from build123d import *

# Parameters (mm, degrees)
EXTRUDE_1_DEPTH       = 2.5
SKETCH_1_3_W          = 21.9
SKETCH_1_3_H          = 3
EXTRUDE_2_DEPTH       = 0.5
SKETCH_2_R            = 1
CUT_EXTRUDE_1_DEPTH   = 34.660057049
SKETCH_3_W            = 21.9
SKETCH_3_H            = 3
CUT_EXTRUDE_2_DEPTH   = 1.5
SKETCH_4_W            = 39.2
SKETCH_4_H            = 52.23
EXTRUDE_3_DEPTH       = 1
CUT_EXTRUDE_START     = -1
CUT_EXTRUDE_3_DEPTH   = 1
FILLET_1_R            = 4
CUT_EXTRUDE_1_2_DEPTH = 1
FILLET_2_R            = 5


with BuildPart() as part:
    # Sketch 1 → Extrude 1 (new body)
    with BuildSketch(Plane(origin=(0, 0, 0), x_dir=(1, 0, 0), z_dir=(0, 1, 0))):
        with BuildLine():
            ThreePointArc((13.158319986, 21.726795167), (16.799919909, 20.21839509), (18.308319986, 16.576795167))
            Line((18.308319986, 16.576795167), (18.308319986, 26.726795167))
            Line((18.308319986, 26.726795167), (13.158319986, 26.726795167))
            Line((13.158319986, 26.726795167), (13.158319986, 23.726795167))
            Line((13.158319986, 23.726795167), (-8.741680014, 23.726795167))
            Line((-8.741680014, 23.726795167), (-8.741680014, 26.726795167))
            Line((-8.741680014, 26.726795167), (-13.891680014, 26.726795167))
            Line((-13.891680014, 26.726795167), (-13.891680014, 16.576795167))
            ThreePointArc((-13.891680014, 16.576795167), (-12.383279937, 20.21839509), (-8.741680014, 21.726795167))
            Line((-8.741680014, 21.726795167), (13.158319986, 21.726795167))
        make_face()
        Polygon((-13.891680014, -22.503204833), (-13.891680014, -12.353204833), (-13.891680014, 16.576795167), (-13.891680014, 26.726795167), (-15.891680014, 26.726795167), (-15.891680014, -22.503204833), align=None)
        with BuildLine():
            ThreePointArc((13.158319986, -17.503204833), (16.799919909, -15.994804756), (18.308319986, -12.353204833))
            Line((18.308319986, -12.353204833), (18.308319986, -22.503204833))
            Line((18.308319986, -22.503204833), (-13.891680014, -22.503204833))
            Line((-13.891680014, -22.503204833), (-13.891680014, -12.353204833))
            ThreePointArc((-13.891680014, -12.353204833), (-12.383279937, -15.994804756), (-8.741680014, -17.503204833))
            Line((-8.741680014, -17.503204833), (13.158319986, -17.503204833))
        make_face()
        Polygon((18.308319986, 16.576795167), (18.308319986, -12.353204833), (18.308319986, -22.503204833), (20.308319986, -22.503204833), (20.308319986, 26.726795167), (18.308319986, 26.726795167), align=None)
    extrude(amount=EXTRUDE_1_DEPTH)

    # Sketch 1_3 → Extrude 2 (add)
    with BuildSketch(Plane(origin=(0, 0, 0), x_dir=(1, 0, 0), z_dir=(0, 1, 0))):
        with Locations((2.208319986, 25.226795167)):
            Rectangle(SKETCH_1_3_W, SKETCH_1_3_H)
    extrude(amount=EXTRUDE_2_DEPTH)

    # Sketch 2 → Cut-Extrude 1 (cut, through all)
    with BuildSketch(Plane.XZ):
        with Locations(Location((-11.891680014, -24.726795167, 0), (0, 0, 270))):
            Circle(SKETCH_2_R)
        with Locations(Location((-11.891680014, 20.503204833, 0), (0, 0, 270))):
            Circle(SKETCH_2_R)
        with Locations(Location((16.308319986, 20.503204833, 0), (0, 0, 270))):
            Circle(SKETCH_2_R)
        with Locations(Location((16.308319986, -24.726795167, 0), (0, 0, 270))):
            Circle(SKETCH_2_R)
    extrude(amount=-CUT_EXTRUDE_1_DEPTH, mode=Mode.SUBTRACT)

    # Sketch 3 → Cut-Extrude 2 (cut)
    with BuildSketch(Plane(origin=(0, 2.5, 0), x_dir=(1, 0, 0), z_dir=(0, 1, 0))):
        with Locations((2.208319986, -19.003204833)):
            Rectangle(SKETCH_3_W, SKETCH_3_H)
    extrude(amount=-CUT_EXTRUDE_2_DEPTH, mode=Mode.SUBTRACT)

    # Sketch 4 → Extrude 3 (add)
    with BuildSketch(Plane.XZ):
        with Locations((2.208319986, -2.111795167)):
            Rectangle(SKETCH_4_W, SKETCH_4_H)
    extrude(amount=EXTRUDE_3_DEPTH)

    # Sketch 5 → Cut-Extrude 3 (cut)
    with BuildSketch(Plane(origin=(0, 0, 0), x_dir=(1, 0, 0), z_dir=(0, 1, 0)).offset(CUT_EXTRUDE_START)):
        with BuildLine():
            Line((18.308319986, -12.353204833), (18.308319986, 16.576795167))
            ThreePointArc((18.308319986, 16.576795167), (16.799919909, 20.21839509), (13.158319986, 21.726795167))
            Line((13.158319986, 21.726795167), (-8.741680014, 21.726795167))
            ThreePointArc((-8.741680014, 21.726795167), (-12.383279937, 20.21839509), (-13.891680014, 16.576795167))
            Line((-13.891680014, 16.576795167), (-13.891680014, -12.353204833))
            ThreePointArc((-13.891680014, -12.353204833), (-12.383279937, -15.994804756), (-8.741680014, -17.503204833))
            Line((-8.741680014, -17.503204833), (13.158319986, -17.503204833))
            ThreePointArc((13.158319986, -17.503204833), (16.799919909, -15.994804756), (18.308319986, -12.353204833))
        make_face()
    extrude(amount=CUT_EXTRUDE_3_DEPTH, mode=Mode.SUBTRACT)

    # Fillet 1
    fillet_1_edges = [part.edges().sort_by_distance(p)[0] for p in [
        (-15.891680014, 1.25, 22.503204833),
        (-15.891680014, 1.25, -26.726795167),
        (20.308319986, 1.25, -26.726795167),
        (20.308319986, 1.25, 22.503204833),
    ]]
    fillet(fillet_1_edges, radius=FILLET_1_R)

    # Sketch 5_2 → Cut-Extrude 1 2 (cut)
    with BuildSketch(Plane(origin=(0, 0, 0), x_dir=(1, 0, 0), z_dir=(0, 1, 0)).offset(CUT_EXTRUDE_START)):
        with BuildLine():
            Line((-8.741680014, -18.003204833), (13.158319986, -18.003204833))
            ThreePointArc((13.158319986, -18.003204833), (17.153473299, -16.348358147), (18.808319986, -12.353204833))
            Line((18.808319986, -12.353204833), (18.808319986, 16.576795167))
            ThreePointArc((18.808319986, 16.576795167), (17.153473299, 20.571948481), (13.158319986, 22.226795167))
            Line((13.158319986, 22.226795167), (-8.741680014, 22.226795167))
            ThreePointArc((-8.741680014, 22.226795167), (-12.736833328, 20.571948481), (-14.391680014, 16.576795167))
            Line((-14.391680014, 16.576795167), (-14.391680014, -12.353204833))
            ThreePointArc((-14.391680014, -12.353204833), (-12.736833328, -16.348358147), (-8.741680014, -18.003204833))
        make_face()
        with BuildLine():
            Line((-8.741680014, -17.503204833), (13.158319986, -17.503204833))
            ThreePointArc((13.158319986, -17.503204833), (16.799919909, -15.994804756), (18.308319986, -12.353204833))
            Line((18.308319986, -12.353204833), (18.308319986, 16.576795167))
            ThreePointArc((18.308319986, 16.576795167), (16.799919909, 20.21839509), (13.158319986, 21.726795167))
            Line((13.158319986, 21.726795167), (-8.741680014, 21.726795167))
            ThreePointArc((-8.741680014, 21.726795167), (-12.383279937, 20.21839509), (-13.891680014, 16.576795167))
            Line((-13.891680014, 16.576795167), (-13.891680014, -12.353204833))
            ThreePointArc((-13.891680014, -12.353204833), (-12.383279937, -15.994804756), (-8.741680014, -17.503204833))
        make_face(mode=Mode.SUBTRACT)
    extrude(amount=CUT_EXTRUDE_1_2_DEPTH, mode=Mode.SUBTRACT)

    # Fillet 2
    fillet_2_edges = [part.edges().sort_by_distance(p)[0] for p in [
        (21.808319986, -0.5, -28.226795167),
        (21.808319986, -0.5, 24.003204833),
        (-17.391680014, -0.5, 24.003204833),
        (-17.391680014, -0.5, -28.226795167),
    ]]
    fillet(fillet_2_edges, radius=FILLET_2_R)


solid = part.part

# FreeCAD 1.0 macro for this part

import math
import FreeCAD as App
import Part
import Sketcher
from FreeCAD import Vector
Q = App.Units.Quantity


def edges_at(feature, points):
    """Names of the edges that pass closest to the given points."""
    edges = feature.Shape.Edges
    near = lambda p: min(range(len(edges)), key=lambda i: edges[i].distToShape(Part.Vertex(*p))[0])
    return sorted({f"Edge{near(p) + 1}" for p in points})


def add_polygon(sketch, points):
    """Adds a closed chain of lines whose ends are joined by coincident constraints."""
    first, n = sketch.GeometryCount, len(points)
    for a, b in zip(points, points[1:] + points[:1]):
        sketch.addGeometry(Part.LineSegment(App.Vector(*a, 0), App.Vector(*b, 0)), False)
    for i in range(n):
        sketch.addConstraint(Sketcher.Constraint("Coincident", first + i, 2, first + (i + 1) % n, 1))

doc = App.newDocument("Part")
params = doc.addObject("Spreadsheet::Sheet", "Params")
for row, (alias, value) in enumerate([
    ("sketch1_height", "3 mm"),
    ("sketch1_radius", "5.15 mm"),
    ("sketch1_width", "21.9 mm"),
    ("sketch1_width2", "36.2 mm"),
    ("sketch1_height2", "49.23 mm"),
    ("pad1_length", "2.5 mm"),
    ("sketch2_height", "3 mm"),
    ("sketch2_width", "21.9 mm"),
    ("pad2_length", "0.5 mm"),
    ("sketch3_diameter", "2 mm"),
    ("sketch4_height", "3 mm"),
    ("sketch4_width", "21.9 mm"),
    ("pocket2_length", "1.5 mm"),
    ("sketch5_width", "39.2 mm"),
    ("sketch5_height", "52.23 mm"),
    ("pad3_length", "1 mm"),
    ("sketch6_radius", "5.15 mm"),
    ("sketch6_width", "21.9 mm"),
    ("sketch6_height", "28.93 mm"),
    ("pocket3_length", "1 mm"),
    ("fillet_radius", "4 mm"),
    ("sketch7_radius", "5.65 mm"),
    ("sketch7_radius2", "5.15 mm"),
    ("sketch7_width", "21.9 mm"),
    ("sketch7_height", "28.93 mm"),
    ("pocket4_length", "1 mm"),
    ("fillet2_radius", "5 mm"),
], start=1):
    params.set(f"A{row}", alias)
    params.set(f"B{row}", "=" + value)
    params.setAlias(f"B{row}", alias)

body = doc.addObject("PartDesign::Body", "Body")

# Sketch on XZ plane
sketch1 = body.newObject("Sketcher::SketchObject", "Sketch")
sketch1.AttachmentSupport = (doc.getObject("XZ_Plane"), [""])
sketch1.MapMode = "FlatFace"
add_polygon(sketch1, [(13.15832, -26.726795), (13.15832, -23.726795), (-8.74168, -23.726795), (-8.74168, -26.726795), (-15.89168, -26.726795), (-15.89168, 22.503205), (20.30832, 22.503205), (20.30832, -26.726795)])  # lines 0-7
sketch1.addGeometry(Part.ArcOfCircle(Part.Circle(Vector(13.15832, -16.576795, 0), Vector(0, 0, 1), 5.15), math.radians(-90), math.radians(0)), False)  # 8
sketch1.addGeometry(Part.LineSegment(Vector(18.30832, -16.576795, 0), Vector(18.30832, 12.353205, 0)), False)  # 9
sketch1.addGeometry(Part.ArcOfCircle(Part.Circle(Vector(13.15832, 12.353205, 0), Vector(0, 0, 1), 5.15), math.radians(0), math.radians(90)), False)  # 10
sketch1.addGeometry(Part.LineSegment(Vector(13.15832, 17.503205, 0), Vector(-8.74168, 17.503205, 0)), False)  # 11
sketch1.addGeometry(Part.ArcOfCircle(Part.Circle(Vector(-8.74168, 12.353205, 0), Vector(0, 0, 1), 5.15), math.radians(90), math.radians(180)), False)  # 12
sketch1.addGeometry(Part.LineSegment(Vector(-13.89168, 12.353205, 0), Vector(-13.89168, -16.576795, 0)), False)  # 13
sketch1.addGeometry(Part.ArcOfCircle(Part.Circle(Vector(-8.74168, -16.576795, 0), Vector(0, 0, 1), 5.15), math.radians(180), math.radians(270)), False)  # 14
sketch1.addGeometry(Part.LineSegment(Vector(-8.74168, -21.726795, 0), Vector(13.15832, -21.726795, 0)), False)  # 15
sketch1.addConstraint(Sketcher.Constraint("Tangent", 8, 2, 9, 1))
sketch1.addConstraint(Sketcher.Constraint("Tangent", 9, 2, 10, 1))
sketch1.addConstraint(Sketcher.Constraint("Tangent", 10, 2, 11, 1))
sketch1.addConstraint(Sketcher.Constraint("Tangent", 11, 2, 12, 1))
sketch1.addConstraint(Sketcher.Constraint("Tangent", 12, 2, 13, 1))
sketch1.addConstraint(Sketcher.Constraint("Tangent", 13, 2, 14, 1))
sketch1.addConstraint(Sketcher.Constraint("Tangent", 14, 2, 15, 1))
sketch1.addConstraint(Sketcher.Constraint("Tangent", 15, 2, 8, 1))
sketch1.addConstraint(Sketcher.Constraint("Vertical", 0))
sketch1.addConstraint(Sketcher.Constraint("Horizontal", 1))
sketch1.addConstraint(Sketcher.Constraint("Vertical", 2))
sketch1.addConstraint(Sketcher.Constraint("Horizontal", 3))
sketch1.addConstraint(Sketcher.Constraint("Vertical", 4))
sketch1.addConstraint(Sketcher.Constraint("Horizontal", 5))
sketch1.addConstraint(Sketcher.Constraint("Vertical", 6))
sketch1.addConstraint(Sketcher.Constraint("Horizontal", 7))
sketch1.addConstraint(Sketcher.Constraint("Vertical", 9))
sketch1.addConstraint(Sketcher.Constraint("Horizontal", 11))
sketch1.addConstraint(Sketcher.Constraint("Vertical", 13))
sketch1.addConstraint(Sketcher.Constraint("Horizontal", 15))
sketch1.addConstraint(Sketcher.Constraint("Equal", 8, 10))
sketch1.addConstraint(Sketcher.Constraint("Equal", 10, 12))
sketch1.addConstraint(Sketcher.Constraint("Equal", 12, 14))
sketch1.addConstraint(Sketcher.Constraint("Horizontal", 3, 2, 6, 2))
sketch1.addConstraint(Sketcher.Constraint("Vertical", 10, 3, 0, 2))
sketch1.addConstraint(Sketcher.Constraint("Vertical", 14, 3, 1, 2))
sketch1.addConstraint(Sketcher.Constraint("Equal", 3, 7))
sketch1.addConstraint(Sketcher.Constraint("DistanceY", 0, 1, 0, 2, Q("3 mm")))
sketch1.addConstraint(Sketcher.Constraint("Radius", 8, Q("5.15 mm")))
sketch1.addConstraint(Sketcher.Constraint("DistanceX", 1, 2, 1, 1, Q("21.9 mm")))
sketch1.addConstraint(Sketcher.Constraint("DistanceX", 5, 1, 5, 2, Q("36.2 mm")))
sketch1.addConstraint(Sketcher.Constraint("DistanceY", 10, 2, 5, 2, Q("5 mm")))
sketch1.addConstraint(Sketcher.Constraint("DistanceY", 1, 2, 14, 2, Q("2 mm")))
sketch1.addConstraint(Sketcher.Constraint("DistanceY", 4, 1, 4, 2, Q("49.23 mm")))
sketch1.addConstraint(Sketcher.Constraint("DistanceX", -1, 1, 8, 3, Q("13.15832 mm")))
sketch1.addConstraint(Sketcher.Constraint("DistanceY", 8, 3, -1, 1, Q("16.576795 mm")))
sketch1.setExpression("Constraints[35]", "Params.sketch1_height")
sketch1.setExpression("Constraints[36]", "Params.sketch1_radius")
sketch1.setExpression("Constraints[37]", "Params.sketch1_width")
sketch1.setExpression("Constraints[38]", "Params.sketch1_width2")
sketch1.setExpression("Constraints[41]", "Params.sketch1_height2")
pad1 = body.newObject("PartDesign::Pad", "Pad")
pad1.Profile = sketch1
pad1.setExpression("Length", "Params.pad1_length")
pad1.Reversed = True

# Sketch on XZ plane
sketch2 = body.newObject("Sketcher::SketchObject", "Sketch001")
sketch2.AttachmentSupport = (doc.getObject("XZ_Plane"), [""])
sketch2.MapMode = "FlatFace"
add_polygon(sketch2, [(-8.74168, -26.726795), (-8.74168, -23.726795), (13.15832, -23.726795), (13.15832, -26.726795)])  # lines 0-3
sketch2.addConstraint(Sketcher.Constraint("Vertical", 0))
sketch2.addConstraint(Sketcher.Constraint("Horizontal", 1))
sketch2.addConstraint(Sketcher.Constraint("Vertical", 2))
sketch2.addConstraint(Sketcher.Constraint("Horizontal", 3))
sketch2.addConstraint(Sketcher.Constraint("DistanceY", 0, 1, 0, 2, Q("3 mm")))
sketch2.addConstraint(Sketcher.Constraint("DistanceX", 1, 1, 1, 2, Q("21.9 mm")))
sketch2.addConstraint(Sketcher.Constraint("DistanceX", 0, 2, -1, 1, Q("8.74168 mm")))
sketch2.addConstraint(Sketcher.Constraint("DistanceY", 0, 2, -1, 1, Q("23.726795 mm")))
sketch2.setExpression("Constraints[8]", "Params.sketch2_height")
sketch2.setExpression("Constraints[9]", "Params.sketch2_width")
pad2 = body.newObject("PartDesign::Pad", "Pad001")
pad2.Profile = sketch2
pad2.setExpression("Length", "Params.pad2_length")
pad2.Reversed = True

# Sketch on XZ plane
sketch3 = body.newObject("Sketcher::SketchObject", "Sketch002")
sketch3.AttachmentSupport = (doc.getObject("XZ_Plane"), [""])
sketch3.MapMode = "FlatFace"
sketch3.addGeometry(Part.Circle(Vector(-11.89168, -24.726795, 0), Vector(0, 0, 1), 1), False)
sketch3.addGeometry(Part.Circle(Vector(-11.89168, 20.503205, 0), Vector(0, 0, 1), 1), False)
sketch3.addGeometry(Part.Circle(Vector(16.30832, 20.503205, 0), Vector(0, 0, 1), 1), False)
sketch3.addGeometry(Part.Circle(Vector(16.30832, -24.726795, 0), Vector(0, 0, 1), 1), False)
sketch3.addConstraint(Sketcher.Constraint("Equal", 0, 1))
sketch3.addConstraint(Sketcher.Constraint("Equal", 1, 2))
sketch3.addConstraint(Sketcher.Constraint("Equal", 2, 3))
sketch3.addConstraint(Sketcher.Constraint("Horizontal", 1, 3, 2, 3))
sketch3.addConstraint(Sketcher.Constraint("Horizontal", 0, 3, 3, 3))
sketch3.addConstraint(Sketcher.Constraint("Vertical", 0, 3, 1, 3))
sketch3.addConstraint(Sketcher.Constraint("Vertical", 2, 3, 3, 3))
sketch3.addConstraint(Sketcher.Constraint("Diameter", 0, Q("2 mm")))
sketch3.addConstraint(Sketcher.Constraint("DistanceX", 1, 3, 2, 3, Q("28.2 mm")))
sketch3.addConstraint(Sketcher.Constraint("DistanceY", 0, 3, 1, 3, Q("45.23 mm")))
sketch3.addConstraint(Sketcher.Constraint("DistanceX", 0, 3, -1, 1, Q("11.89168 mm")))
sketch3.addConstraint(Sketcher.Constraint("DistanceY", 0, 3, -1, 1, Q("24.726795 mm")))
sketch3.setExpression("Constraints[7]", "Params.sketch3_diameter")
pocket1 = body.newObject("PartDesign::Pocket", "Pocket")
pocket1.Profile = sketch3
pocket1.Type = "ThroughAll"

# Sketch on XZ plane
sketch4 = body.newObject("Sketcher::SketchObject", "Sketch003")
sketch4.AttachmentSupport = (doc.getObject("XZ_Plane"), [""])
sketch4.MapMode = "FlatFace"
sketch4.AttachmentOffset = App.Placement(Vector(0, 0, -2.5), App.Rotation())
add_polygon(sketch4, [(-8.74168, 17.503205), (-8.74168, 20.503205), (13.15832, 20.503205), (13.15832, 17.503205)])  # lines 0-3
sketch4.addConstraint(Sketcher.Constraint("Vertical", 0))
sketch4.addConstraint(Sketcher.Constraint("Horizontal", 1))
sketch4.addConstraint(Sketcher.Constraint("Vertical", 2))
sketch4.addConstraint(Sketcher.Constraint("Horizontal", 3))
sketch4.addConstraint(Sketcher.Constraint("DistanceY", 0, 1, 0, 2, Q("3 mm")))
sketch4.addConstraint(Sketcher.Constraint("DistanceX", 1, 1, 1, 2, Q("21.9 mm")))
sketch4.addConstraint(Sketcher.Constraint("DistanceX", 0, 2, -1, 1, Q("8.74168 mm")))
sketch4.addConstraint(Sketcher.Constraint("DistanceY", -1, 1, 0, 2, Q("20.503205 mm")))
sketch4.setExpression("Constraints[8]", "Params.sketch4_height")
sketch4.setExpression("Constraints[9]", "Params.sketch4_width")
pocket2 = body.newObject("PartDesign::Pocket", "Pocket001")
pocket2.Profile = sketch4
pocket2.setExpression("Length", "Params.pocket2_length")
pocket2.Reversed = True

# Sketch on XZ plane
sketch5 = body.newObject("Sketcher::SketchObject", "Sketch004")
sketch5.AttachmentSupport = (doc.getObject("XZ_Plane"), [""])
sketch5.MapMode = "FlatFace"
add_polygon(sketch5, [(-17.39168, 24.003205), (-17.39168, -28.226795), (21.80832, -28.226795), (21.80832, 24.003205)])  # lines 0-3
sketch5.addConstraint(Sketcher.Constraint("Vertical", 0))
sketch5.addConstraint(Sketcher.Constraint("Horizontal", 1))
sketch5.addConstraint(Sketcher.Constraint("Vertical", 2))
sketch5.addConstraint(Sketcher.Constraint("Horizontal", 3))
sketch5.addConstraint(Sketcher.Constraint("DistanceX", 1, 1, 1, 2, Q("39.2 mm")))
sketch5.addConstraint(Sketcher.Constraint("DistanceY", 0, 2, 0, 1, Q("52.23 mm")))
sketch5.addConstraint(Sketcher.Constraint("DistanceX", 0, 2, -1, 1, Q("17.39168 mm")))
sketch5.addConstraint(Sketcher.Constraint("DistanceY", 0, 2, -1, 1, Q("28.226795 mm")))
sketch5.setExpression("Constraints[8]", "Params.sketch5_width")
sketch5.setExpression("Constraints[9]", "Params.sketch5_height")
pad3 = body.newObject("PartDesign::Pad", "Pad002")
pad3.Profile = sketch5
pad3.setExpression("Length", "Params.pad3_length")

# Sketch on XZ plane
sketch6 = body.newObject("Sketcher::SketchObject", "Sketch005")
sketch6.AttachmentSupport = (doc.getObject("XZ_Plane"), [""])
sketch6.MapMode = "FlatFace"
sketch6.AttachmentOffset = App.Placement(Vector(0, 0, 1), App.Rotation())
sketch6.addGeometry(Part.LineSegment(Vector(18.30832, 12.353205, 0), Vector(18.30832, -16.576795, 0)), False)
sketch6.addGeometry(Part.ArcOfCircle(Part.Circle(Vector(13.15832, -16.576795, 0), Vector(0, 0, 1), 5.15), math.radians(-90), math.radians(0)), False)
sketch6.addGeometry(Part.LineSegment(Vector(13.15832, -21.726795, 0), Vector(-8.74168, -21.726795, 0)), False)
sketch6.addGeometry(Part.ArcOfCircle(Part.Circle(Vector(-8.74168, -16.576795, 0), Vector(0, 0, 1), 5.15), math.radians(180), math.radians(270)), False)
sketch6.addGeometry(Part.LineSegment(Vector(-13.89168, -16.576795, 0), Vector(-13.89168, 12.353205, 0)), False)
sketch6.addGeometry(Part.ArcOfCircle(Part.Circle(Vector(-8.74168, 12.353205, 0), Vector(0, 0, 1), 5.15), math.radians(90), math.radians(180)), False)
sketch6.addGeometry(Part.LineSegment(Vector(-8.74168, 17.503205, 0), Vector(13.15832, 17.503205, 0)), False)
sketch6.addGeometry(Part.ArcOfCircle(Part.Circle(Vector(13.15832, 12.353205, 0), Vector(0, 0, 1), 5.15), math.radians(0), math.radians(90)), False)
sketch6.addConstraint(Sketcher.Constraint("Tangent", 0, 2, 1, 2))
sketch6.addConstraint(Sketcher.Constraint("Tangent", 1, 1, 2, 1))
sketch6.addConstraint(Sketcher.Constraint("Tangent", 2, 2, 3, 2))
sketch6.addConstraint(Sketcher.Constraint("Tangent", 3, 1, 4, 1))
sketch6.addConstraint(Sketcher.Constraint("Tangent", 4, 2, 5, 2))
sketch6.addConstraint(Sketcher.Constraint("Tangent", 5, 1, 6, 1))
sketch6.addConstraint(Sketcher.Constraint("Tangent", 6, 2, 7, 2))
sketch6.addConstraint(Sketcher.Constraint("Tangent", 7, 1, 0, 1))
sketch6.addConstraint(Sketcher.Constraint("Vertical", 0))
sketch6.addConstraint(Sketcher.Constraint("Horizontal", 2))
sketch6.addConstraint(Sketcher.Constraint("Vertical", 4))
sketch6.addConstraint(Sketcher.Constraint("Horizontal", 6))
sketch6.addConstraint(Sketcher.Constraint("Equal", 1, 3))
sketch6.addConstraint(Sketcher.Constraint("Equal", 3, 5))
sketch6.addConstraint(Sketcher.Constraint("Equal", 5, 7))
sketch6.addConstraint(Sketcher.Constraint("Radius", 1, Q("5.15 mm")))
sketch6.addConstraint(Sketcher.Constraint("DistanceX", 2, 2, 2, 1, Q("21.9 mm")))
sketch6.addConstraint(Sketcher.Constraint("DistanceY", 0, 2, 0, 1, Q("28.93 mm")))
sketch6.addConstraint(Sketcher.Constraint("DistanceX", -1, 1, 1, 3, Q("13.15832 mm")))
sketch6.addConstraint(Sketcher.Constraint("DistanceY", 1, 3, -1, 1, Q("16.576795 mm")))
sketch6.setExpression("Constraints[15]", "Params.sketch6_radius")
sketch6.setExpression("Constraints[16]", "Params.sketch6_width")
sketch6.setExpression("Constraints[17]", "Params.sketch6_height")
pocket3 = body.newObject("PartDesign::Pocket", "Pocket002")
pocket3.Profile = sketch6
pocket3.setExpression("Length", "Params.pocket3_length")
doc.recompute()

fillet = body.newObject("PartDesign::Fillet", "Fillet")
fillet.Base = (pocket3, edges_at(pocket3, [
    (-15.892, 1.25, 22.503),
    (-15.892, 1.25, -26.727),
    (20.308, 1.25, -26.727),
    (20.308, 1.25, 22.503),
]))
fillet.setExpression("Radius", "Params.fillet_radius")

# Sketch on XZ plane
sketch7 = body.newObject("Sketcher::SketchObject", "Sketch006")
sketch7.AttachmentSupport = (doc.getObject("XZ_Plane"), [""])
sketch7.MapMode = "FlatFace"
sketch7.AttachmentOffset = App.Placement(Vector(0, 0, 1), App.Rotation())
sketch7.addGeometry(Part.LineSegment(Vector(-8.74168, 18.003205, 0), Vector(13.15832, 18.003205, 0)), False)
sketch7.addGeometry(Part.ArcOfCircle(Part.Circle(Vector(13.15832, 12.353205, 0), Vector(0, 0, 1), 5.65), math.radians(0), math.radians(90)), False)
sketch7.addGeometry(Part.LineSegment(Vector(18.80832, 12.353205, 0), Vector(18.80832, -16.576795, 0)), False)
sketch7.addGeometry(Part.ArcOfCircle(Part.Circle(Vector(13.15832, -16.576795, 0), Vector(0, 0, 1), 5.65), math.radians(-90), math.radians(0)), False)
sketch7.addGeometry(Part.LineSegment(Vector(13.15832, -22.226795, 0), Vector(-8.74168, -22.226795, 0)), False)
sketch7.addGeometry(Part.ArcOfCircle(Part.Circle(Vector(-8.74168, -16.576795, 0), Vector(0, 0, 1), 5.65), math.radians(180), math.radians(270)), False)
sketch7.addGeometry(Part.LineSegment(Vector(-14.39168, -16.576795, 0), Vector(-14.39168, 12.353205, 0)), False)
sketch7.addGeometry(Part.ArcOfCircle(Part.Circle(Vector(-8.74168, 12.353205, 0), Vector(0, 0, 1), 5.65), math.radians(90), math.radians(180)), False)
sketch7.addGeometry(Part.LineSegment(Vector(13.15832, 17.503205, 0), Vector(-8.74168, 17.503205, 0)), False)
sketch7.addGeometry(Part.ArcOfCircle(Part.Circle(Vector(-8.74168, 12.353205, 0), Vector(0, 0, 1), 5.15), math.radians(90), math.radians(180)), False)
sketch7.addGeometry(Part.LineSegment(Vector(-13.89168, 12.353205, 0), Vector(-13.89168, -16.576795, 0)), False)
sketch7.addGeometry(Part.ArcOfCircle(Part.Circle(Vector(-8.74168, -16.576795, 0), Vector(0, 0, 1), 5.15), math.radians(180), math.radians(270)), False)
sketch7.addGeometry(Part.LineSegment(Vector(-8.74168, -21.726795, 0), Vector(13.15832, -21.726795, 0)), False)
sketch7.addGeometry(Part.ArcOfCircle(Part.Circle(Vector(13.15832, -16.576795, 0), Vector(0, 0, 1), 5.15), math.radians(-90), math.radians(0)), False)
sketch7.addGeometry(Part.LineSegment(Vector(18.30832, -16.576795, 0), Vector(18.30832, 12.353205, 0)), False)
sketch7.addGeometry(Part.ArcOfCircle(Part.Circle(Vector(13.15832, 12.353205, 0), Vector(0, 0, 1), 5.15), math.radians(0), math.radians(90)), False)
sketch7.addConstraint(Sketcher.Constraint("Tangent", 0, 2, 1, 2))
sketch7.addConstraint(Sketcher.Constraint("Tangent", 1, 1, 2, 1))
sketch7.addConstraint(Sketcher.Constraint("Tangent", 2, 2, 3, 2))
sketch7.addConstraint(Sketcher.Constraint("Tangent", 3, 1, 4, 1))
sketch7.addConstraint(Sketcher.Constraint("Tangent", 4, 2, 5, 2))
sketch7.addConstraint(Sketcher.Constraint("Tangent", 5, 1, 6, 1))
sketch7.addConstraint(Sketcher.Constraint("Tangent", 6, 2, 7, 2))
sketch7.addConstraint(Sketcher.Constraint("Tangent", 7, 1, 0, 1))
sketch7.addConstraint(Sketcher.Constraint("Tangent", 8, 2, 9, 1))
sketch7.addConstraint(Sketcher.Constraint("Tangent", 9, 2, 10, 1))
sketch7.addConstraint(Sketcher.Constraint("Tangent", 10, 2, 11, 1))
sketch7.addConstraint(Sketcher.Constraint("Tangent", 11, 2, 12, 1))
sketch7.addConstraint(Sketcher.Constraint("Tangent", 12, 2, 13, 1))
sketch7.addConstraint(Sketcher.Constraint("Tangent", 13, 2, 14, 1))
sketch7.addConstraint(Sketcher.Constraint("Tangent", 14, 2, 15, 1))
sketch7.addConstraint(Sketcher.Constraint("Tangent", 15, 2, 8, 1))
sketch7.addConstraint(Sketcher.Constraint("Horizontal", 0))
sketch7.addConstraint(Sketcher.Constraint("Vertical", 2))
sketch7.addConstraint(Sketcher.Constraint("Horizontal", 4))
sketch7.addConstraint(Sketcher.Constraint("Vertical", 6))
sketch7.addConstraint(Sketcher.Constraint("Horizontal", 8))
sketch7.addConstraint(Sketcher.Constraint("Vertical", 10))
sketch7.addConstraint(Sketcher.Constraint("Horizontal", 12))
sketch7.addConstraint(Sketcher.Constraint("Vertical", 14))
sketch7.addConstraint(Sketcher.Constraint("Coincident", 9, 3, 7, 3))
sketch7.addConstraint(Sketcher.Constraint("Coincident", 11, 3, 5, 3))
sketch7.addConstraint(Sketcher.Constraint("Coincident", 13, 3, 3, 3))
sketch7.addConstraint(Sketcher.Constraint("Equal", 1, 3))
sketch7.addConstraint(Sketcher.Constraint("Equal", 3, 5))
sketch7.addConstraint(Sketcher.Constraint("Equal", 5, 7))
sketch7.addConstraint(Sketcher.Constraint("Equal", 13, 15))
sketch7.addConstraint(Sketcher.Constraint("Radius", 1, Q("5.65 mm")))
sketch7.addConstraint(Sketcher.Constraint("Radius", 9, Q("5.15 mm")))
sketch7.addConstraint(Sketcher.Constraint("DistanceX", 0, 1, 0, 2, Q("21.9 mm")))
sketch7.addConstraint(Sketcher.Constraint("DistanceY", 2, 2, 2, 1, Q("28.93 mm")))
sketch7.addConstraint(Sketcher.Constraint("DistanceX", -1, 1, 1, 3, Q("13.15832 mm")))
sketch7.addConstraint(Sketcher.Constraint("DistanceY", -1, 1, 1, 3, Q("12.353205 mm")))
sketch7.setExpression("Constraints[31]", "Params.sketch7_radius")
sketch7.setExpression("Constraints[32]", "Params.sketch7_radius2")
sketch7.setExpression("Constraints[33]", "Params.sketch7_width")
sketch7.setExpression("Constraints[34]", "Params.sketch7_height")
pocket4 = body.newObject("PartDesign::Pocket", "Pocket003")
pocket4.Profile = sketch7
pocket4.setExpression("Length", "Params.pocket4_length")
doc.recompute()

fillet2 = body.newObject("PartDesign::Fillet", "Fillet001")
fillet2.Base = (pocket4, edges_at(pocket4, [
    (21.808, -0.5, -28.227),
    (21.808, -0.5, 24.003),
    (-17.392, -0.5, 24.003),
    (-17.392, -0.5, -28.227),
]))
fillet2.setExpression("Radius", "Params.fillet2_radius")

doc.recompute()
